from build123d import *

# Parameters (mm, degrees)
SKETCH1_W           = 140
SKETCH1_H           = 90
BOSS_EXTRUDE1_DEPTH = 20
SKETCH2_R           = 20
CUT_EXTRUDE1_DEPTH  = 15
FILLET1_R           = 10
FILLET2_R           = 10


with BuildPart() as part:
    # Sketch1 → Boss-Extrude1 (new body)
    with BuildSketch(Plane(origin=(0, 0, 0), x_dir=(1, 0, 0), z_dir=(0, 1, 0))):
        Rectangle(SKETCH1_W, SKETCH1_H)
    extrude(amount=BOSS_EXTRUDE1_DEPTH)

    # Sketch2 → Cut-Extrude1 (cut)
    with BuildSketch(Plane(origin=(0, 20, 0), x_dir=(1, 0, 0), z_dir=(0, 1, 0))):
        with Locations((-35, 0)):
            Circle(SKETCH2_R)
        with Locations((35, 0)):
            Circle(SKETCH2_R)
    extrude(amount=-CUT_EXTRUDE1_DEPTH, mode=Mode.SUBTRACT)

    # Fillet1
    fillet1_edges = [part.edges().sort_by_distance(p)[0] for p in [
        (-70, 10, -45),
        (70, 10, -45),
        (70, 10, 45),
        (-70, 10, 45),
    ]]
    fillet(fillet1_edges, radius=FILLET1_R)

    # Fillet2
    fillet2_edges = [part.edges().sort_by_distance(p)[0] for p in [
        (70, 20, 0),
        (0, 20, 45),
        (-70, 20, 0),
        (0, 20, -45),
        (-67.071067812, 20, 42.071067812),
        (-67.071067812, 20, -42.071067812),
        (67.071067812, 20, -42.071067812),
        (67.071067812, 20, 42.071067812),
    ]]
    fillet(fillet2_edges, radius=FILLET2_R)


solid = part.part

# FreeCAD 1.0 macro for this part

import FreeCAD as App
import Part
import Sketcher

V = App.Vector
Q = App.Units.Quantity


def edges_at(feature, points):
    """Names of the edges that pass closest to the given points."""
    edges = feature.Shape.Edges
    near = lambda p: min(range(len(edges)), key=lambda i: edges[i].distToShape(Part.Vertex(*p))[0])
    return sorted({f"Edge{near(p) + 1}" for p in points})

doc = App.newDocument("Part")
body = doc.addObject("PartDesign::Body", "Body")

# Sketch on XZ plane
sketch1 = body.newObject("Sketcher::SketchObject", "Sketch")
sketch1.AttachmentSupport = (doc.getObject("XZ_Plane"), [""])
sketch1.MapMode = "FlatFace"
sketch1.addGeometry([
    Part.LineSegment(V(-70, -45, 0), V(-70, 45, 0)),
    Part.LineSegment(V(-70, 45, 0), V(70, 45, 0)),
    Part.LineSegment(V(70, 45, 0), V(70, -45, 0)),
    Part.LineSegment(V(70, -45, 0), V(-70, -45, 0)),
], False)
sketch1.addConstraint([
    Sketcher.Constraint("Coincident", 0, 2, 1, 1),
    Sketcher.Constraint("Coincident", 1, 2, 2, 1),
    Sketcher.Constraint("Coincident", 2, 2, 3, 1),
    Sketcher.Constraint("Coincident", 3, 2, 0, 1),
    Sketcher.Constraint("Vertical", 0),
    Sketcher.Constraint("Horizontal", 1),
    Sketcher.Constraint("Vertical", 2),
    Sketcher.Constraint("Horizontal", 3),
    Sketcher.Constraint("Symmetric", 0, 2, 2, 2, -1, 1),
    Sketcher.Constraint("DistanceX", 1, 1, 1, 2, Q("140 mm")),
    Sketcher.Constraint("DistanceY", 0, 1, 0, 2, Q("90 mm")),
])
pad1 = body.newObject("PartDesign::Pad", "Pad")
pad1.Profile = sketch1
pad1.Length = 20
pad1.Reversed = True

# Sketch on XZ plane
sketch2 = body.newObject("Sketcher::SketchObject", "Sketch001")
sketch2.AttachmentSupport = (doc.getObject("XZ_Plane"), [""])
sketch2.MapMode = "FlatFace"
sketch2.AttachmentOffset = App.Placement(V(0, 0, -20), App.Rotation())
sketch2.addGeometry([
    Part.Circle(V(-35, 0, 0), V(0, 0, 1), 20),
    Part.Circle(V(35, 0, 0), V(0, 0, 1), 20),
], False)
sketch2.addConstraint([
    Sketcher.Constraint("Equal", 0, 1),
    Sketcher.Constraint("Symmetric", 0, 3, 1, 3, -1, 1),
    Sketcher.Constraint("PointOnObject", 0, 3, -1),
    Sketcher.Constraint("Diameter", 0, Q("40 mm")),
    Sketcher.Constraint("DistanceX", 0, 3, -1, 1, Q("35 mm")),
])
pocket1 = body.newObject("PartDesign::Pocket", "Pocket")
pocket1.Profile = sketch2
pocket1.Length = 15
pocket1.Reversed = True
doc.recompute()

fillet = body.newObject("PartDesign::Fillet", "Fillet")
fillet.Base = (pocket1, edges_at(pocket1, [
    (-70, 10, -45),
    (70, 10, -45),
    (70, 10, 45),
    (-70, 10, 45),
]))
fillet.Radius = 10
doc.recompute()

fillet2 = body.newObject("PartDesign::Fillet", "Fillet001")
fillet2.Base = (fillet, edges_at(fillet, [
    (70, 20, 0),
    (0, 20, 45),
    (-70, 20, 0),
    (0, 20, -45),
    (-67.071, 20, 42.071),
    (-67.071, 20, -42.071),
    (67.071, 20, -42.071),
    (67.071, 20, 42.071),
]))
fillet2.Radius = 10

doc.recompute()
